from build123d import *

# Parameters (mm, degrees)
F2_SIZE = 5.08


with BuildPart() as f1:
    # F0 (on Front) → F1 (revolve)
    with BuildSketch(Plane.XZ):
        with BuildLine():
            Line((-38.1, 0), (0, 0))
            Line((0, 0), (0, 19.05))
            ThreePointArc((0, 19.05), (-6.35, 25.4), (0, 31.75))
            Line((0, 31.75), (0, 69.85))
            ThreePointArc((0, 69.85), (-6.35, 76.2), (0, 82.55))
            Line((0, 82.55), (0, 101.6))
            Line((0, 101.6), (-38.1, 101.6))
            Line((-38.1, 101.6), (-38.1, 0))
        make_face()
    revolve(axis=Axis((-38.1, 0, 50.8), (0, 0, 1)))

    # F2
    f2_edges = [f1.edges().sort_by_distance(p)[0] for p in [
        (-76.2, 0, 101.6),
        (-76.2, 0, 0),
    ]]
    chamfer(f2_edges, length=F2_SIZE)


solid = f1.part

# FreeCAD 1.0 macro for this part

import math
import FreeCAD as App
import Part
import Sketcher

V = App.Vector
Q = App.Units.Quantity


def edges_at(feature, points):
    """Names of the edges that pass closest to the given points."""
    edges = feature.Shape.Edges
    near = lambda p: min(range(len(edges)), key=lambda i: edges[i].distToShape(Part.Vertex(*p))[0])
    return sorted({f"Edge{near(p) + 1}" for p in points})

doc = App.newDocument("Part")
body = doc.addObject("PartDesign::Body", "Body")

# Sketch on XZ plane
sketch1 = body.newObject("Sketcher::SketchObject", "Sketch")
sketch1.AttachmentSupport = (doc.getObject("XZ_Plane"), [""])
sketch1.MapMode = "FlatFace"
sketch1.addGeometry(Part.LineSegment(V(-38.1, 0, 0), V(0, 0, 0)), False)
sketch1.addGeometry(Part.LineSegment(V(0, 0, 0), V(0, 19.05, 0)), False)
sketch1.addGeometry(Part.ArcOfCircle(Part.Circle(V(0, 25.4, 0), V(0, 0, 1), 6.35), math.radians(90), math.radians(270)), False)
sketch1.addGeometry(Part.LineSegment(V(0, 31.75, 0), V(0, 69.85, 0)), False)
sketch1.addGeometry(Part.ArcOfCircle(Part.Circle(V(0, 76.2, 0), V(0, 0, 1), 6.35), math.radians(90), math.radians(270)), False)
sketch1.addGeometry(Part.LineSegment(V(0, 82.55, 0), V(0, 101.6, 0)), False)
sketch1.addGeometry(Part.LineSegment(V(0, 101.6, 0), V(-38.1, 101.6, 0)), False)
sketch1.addGeometry(Part.LineSegment(V(-38.1, 101.6, 0), V(-38.1, 0, 0)), False)
sketch1.addGeometry(Part.LineSegment(V(-38.1, 0, 0), V(-38.1, 101.6, 0)), True)  # axis
sketch1.addConstraint(Sketcher.Constraint("Coincident", 0, 2, 1, 1))
sketch1.addConstraint(Sketcher.Constraint("Coincident", 1, 2, 2, 2))
sketch1.addConstraint(Sketcher.Constraint("Coincident", 2, 1, 3, 1))
sketch1.addConstraint(Sketcher.Constraint("Coincident", 3, 2, 4, 2))
sketch1.addConstraint(Sketcher.Constraint("Coincident", 4, 1, 5, 1))
sketch1.addConstraint(Sketcher.Constraint("Coincident", 5, 2, 6, 1))
sketch1.addConstraint(Sketcher.Constraint("Coincident", 6, 2, 7, 1))
sketch1.addConstraint(Sketcher.Constraint("Coincident", 7, 2, 0, 1))
sketch1.addConstraint(Sketcher.Constraint("Horizontal", 0))
sketch1.addConstraint(Sketcher.Constraint("Vertical", 1))
sketch1.addConstraint(Sketcher.Constraint("Vertical", 3))
sketch1.addConstraint(Sketcher.Constraint("Vertical", 5))
sketch1.addConstraint(Sketcher.Constraint("Horizontal", 6))
sketch1.addConstraint(Sketcher.Constraint("Vertical", 7))
sketch1.addConstraint(Sketcher.Constraint("Vertical", 8))
sketch1.addConstraint(Sketcher.Constraint("Coincident", 0, 2, -1, 1))
sketch1.addConstraint(Sketcher.Constraint("Coincident", 8, 1, 7, 2))
sketch1.addConstraint(Sketcher.Constraint("Equal", 2, 4))
sketch1.addConstraint(Sketcher.Constraint("PointOnObject", 2, 3, -2))
sketch1.addConstraint(Sketcher.Constraint("PointOnObject", 4, 3, -2))
sketch1.addConstraint(Sketcher.Constraint("PointOnObject", 2, 1, -2))
sketch1.addConstraint(Sketcher.Constraint("PointOnObject", 4, 1, -2))
sketch1.addConstraint(Sketcher.Constraint("Horizontal", 5, 2, 8, 2))
sketch1.addConstraint(Sketcher.Constraint("Equal", 6, 3))
sketch1.addConstraint(Sketcher.Constraint("Equal", 1, 5))
sketch1.addConstraint(Sketcher.Constraint("DistanceY", 7, 2, 7, 1, Q("4 in")))
sketch1.addConstraint(Sketcher.Constraint("Radius", 2, Q("0.25 in")))
sketch1.addConstraint(Sketcher.Constraint("DistanceX", 0, 1, 0, 2, Q("1.5 in")))
revolution = body.newObject("PartDesign::Revolution", "Revolution")
revolution.Profile = sketch1
revolution.ReferenceAxis = (sketch1, ["Axis0"])
revolution.Angle = 360
doc.recompute()

chamfer = body.newObject("PartDesign::Chamfer", "Chamfer")
chamfer.Base = (revolution, edges_at(revolution, [(-76.2, 0, 101.6), (-76.2, 0, 0)]))
chamfer.Size = Q("0.2 in")

doc.recompute()
